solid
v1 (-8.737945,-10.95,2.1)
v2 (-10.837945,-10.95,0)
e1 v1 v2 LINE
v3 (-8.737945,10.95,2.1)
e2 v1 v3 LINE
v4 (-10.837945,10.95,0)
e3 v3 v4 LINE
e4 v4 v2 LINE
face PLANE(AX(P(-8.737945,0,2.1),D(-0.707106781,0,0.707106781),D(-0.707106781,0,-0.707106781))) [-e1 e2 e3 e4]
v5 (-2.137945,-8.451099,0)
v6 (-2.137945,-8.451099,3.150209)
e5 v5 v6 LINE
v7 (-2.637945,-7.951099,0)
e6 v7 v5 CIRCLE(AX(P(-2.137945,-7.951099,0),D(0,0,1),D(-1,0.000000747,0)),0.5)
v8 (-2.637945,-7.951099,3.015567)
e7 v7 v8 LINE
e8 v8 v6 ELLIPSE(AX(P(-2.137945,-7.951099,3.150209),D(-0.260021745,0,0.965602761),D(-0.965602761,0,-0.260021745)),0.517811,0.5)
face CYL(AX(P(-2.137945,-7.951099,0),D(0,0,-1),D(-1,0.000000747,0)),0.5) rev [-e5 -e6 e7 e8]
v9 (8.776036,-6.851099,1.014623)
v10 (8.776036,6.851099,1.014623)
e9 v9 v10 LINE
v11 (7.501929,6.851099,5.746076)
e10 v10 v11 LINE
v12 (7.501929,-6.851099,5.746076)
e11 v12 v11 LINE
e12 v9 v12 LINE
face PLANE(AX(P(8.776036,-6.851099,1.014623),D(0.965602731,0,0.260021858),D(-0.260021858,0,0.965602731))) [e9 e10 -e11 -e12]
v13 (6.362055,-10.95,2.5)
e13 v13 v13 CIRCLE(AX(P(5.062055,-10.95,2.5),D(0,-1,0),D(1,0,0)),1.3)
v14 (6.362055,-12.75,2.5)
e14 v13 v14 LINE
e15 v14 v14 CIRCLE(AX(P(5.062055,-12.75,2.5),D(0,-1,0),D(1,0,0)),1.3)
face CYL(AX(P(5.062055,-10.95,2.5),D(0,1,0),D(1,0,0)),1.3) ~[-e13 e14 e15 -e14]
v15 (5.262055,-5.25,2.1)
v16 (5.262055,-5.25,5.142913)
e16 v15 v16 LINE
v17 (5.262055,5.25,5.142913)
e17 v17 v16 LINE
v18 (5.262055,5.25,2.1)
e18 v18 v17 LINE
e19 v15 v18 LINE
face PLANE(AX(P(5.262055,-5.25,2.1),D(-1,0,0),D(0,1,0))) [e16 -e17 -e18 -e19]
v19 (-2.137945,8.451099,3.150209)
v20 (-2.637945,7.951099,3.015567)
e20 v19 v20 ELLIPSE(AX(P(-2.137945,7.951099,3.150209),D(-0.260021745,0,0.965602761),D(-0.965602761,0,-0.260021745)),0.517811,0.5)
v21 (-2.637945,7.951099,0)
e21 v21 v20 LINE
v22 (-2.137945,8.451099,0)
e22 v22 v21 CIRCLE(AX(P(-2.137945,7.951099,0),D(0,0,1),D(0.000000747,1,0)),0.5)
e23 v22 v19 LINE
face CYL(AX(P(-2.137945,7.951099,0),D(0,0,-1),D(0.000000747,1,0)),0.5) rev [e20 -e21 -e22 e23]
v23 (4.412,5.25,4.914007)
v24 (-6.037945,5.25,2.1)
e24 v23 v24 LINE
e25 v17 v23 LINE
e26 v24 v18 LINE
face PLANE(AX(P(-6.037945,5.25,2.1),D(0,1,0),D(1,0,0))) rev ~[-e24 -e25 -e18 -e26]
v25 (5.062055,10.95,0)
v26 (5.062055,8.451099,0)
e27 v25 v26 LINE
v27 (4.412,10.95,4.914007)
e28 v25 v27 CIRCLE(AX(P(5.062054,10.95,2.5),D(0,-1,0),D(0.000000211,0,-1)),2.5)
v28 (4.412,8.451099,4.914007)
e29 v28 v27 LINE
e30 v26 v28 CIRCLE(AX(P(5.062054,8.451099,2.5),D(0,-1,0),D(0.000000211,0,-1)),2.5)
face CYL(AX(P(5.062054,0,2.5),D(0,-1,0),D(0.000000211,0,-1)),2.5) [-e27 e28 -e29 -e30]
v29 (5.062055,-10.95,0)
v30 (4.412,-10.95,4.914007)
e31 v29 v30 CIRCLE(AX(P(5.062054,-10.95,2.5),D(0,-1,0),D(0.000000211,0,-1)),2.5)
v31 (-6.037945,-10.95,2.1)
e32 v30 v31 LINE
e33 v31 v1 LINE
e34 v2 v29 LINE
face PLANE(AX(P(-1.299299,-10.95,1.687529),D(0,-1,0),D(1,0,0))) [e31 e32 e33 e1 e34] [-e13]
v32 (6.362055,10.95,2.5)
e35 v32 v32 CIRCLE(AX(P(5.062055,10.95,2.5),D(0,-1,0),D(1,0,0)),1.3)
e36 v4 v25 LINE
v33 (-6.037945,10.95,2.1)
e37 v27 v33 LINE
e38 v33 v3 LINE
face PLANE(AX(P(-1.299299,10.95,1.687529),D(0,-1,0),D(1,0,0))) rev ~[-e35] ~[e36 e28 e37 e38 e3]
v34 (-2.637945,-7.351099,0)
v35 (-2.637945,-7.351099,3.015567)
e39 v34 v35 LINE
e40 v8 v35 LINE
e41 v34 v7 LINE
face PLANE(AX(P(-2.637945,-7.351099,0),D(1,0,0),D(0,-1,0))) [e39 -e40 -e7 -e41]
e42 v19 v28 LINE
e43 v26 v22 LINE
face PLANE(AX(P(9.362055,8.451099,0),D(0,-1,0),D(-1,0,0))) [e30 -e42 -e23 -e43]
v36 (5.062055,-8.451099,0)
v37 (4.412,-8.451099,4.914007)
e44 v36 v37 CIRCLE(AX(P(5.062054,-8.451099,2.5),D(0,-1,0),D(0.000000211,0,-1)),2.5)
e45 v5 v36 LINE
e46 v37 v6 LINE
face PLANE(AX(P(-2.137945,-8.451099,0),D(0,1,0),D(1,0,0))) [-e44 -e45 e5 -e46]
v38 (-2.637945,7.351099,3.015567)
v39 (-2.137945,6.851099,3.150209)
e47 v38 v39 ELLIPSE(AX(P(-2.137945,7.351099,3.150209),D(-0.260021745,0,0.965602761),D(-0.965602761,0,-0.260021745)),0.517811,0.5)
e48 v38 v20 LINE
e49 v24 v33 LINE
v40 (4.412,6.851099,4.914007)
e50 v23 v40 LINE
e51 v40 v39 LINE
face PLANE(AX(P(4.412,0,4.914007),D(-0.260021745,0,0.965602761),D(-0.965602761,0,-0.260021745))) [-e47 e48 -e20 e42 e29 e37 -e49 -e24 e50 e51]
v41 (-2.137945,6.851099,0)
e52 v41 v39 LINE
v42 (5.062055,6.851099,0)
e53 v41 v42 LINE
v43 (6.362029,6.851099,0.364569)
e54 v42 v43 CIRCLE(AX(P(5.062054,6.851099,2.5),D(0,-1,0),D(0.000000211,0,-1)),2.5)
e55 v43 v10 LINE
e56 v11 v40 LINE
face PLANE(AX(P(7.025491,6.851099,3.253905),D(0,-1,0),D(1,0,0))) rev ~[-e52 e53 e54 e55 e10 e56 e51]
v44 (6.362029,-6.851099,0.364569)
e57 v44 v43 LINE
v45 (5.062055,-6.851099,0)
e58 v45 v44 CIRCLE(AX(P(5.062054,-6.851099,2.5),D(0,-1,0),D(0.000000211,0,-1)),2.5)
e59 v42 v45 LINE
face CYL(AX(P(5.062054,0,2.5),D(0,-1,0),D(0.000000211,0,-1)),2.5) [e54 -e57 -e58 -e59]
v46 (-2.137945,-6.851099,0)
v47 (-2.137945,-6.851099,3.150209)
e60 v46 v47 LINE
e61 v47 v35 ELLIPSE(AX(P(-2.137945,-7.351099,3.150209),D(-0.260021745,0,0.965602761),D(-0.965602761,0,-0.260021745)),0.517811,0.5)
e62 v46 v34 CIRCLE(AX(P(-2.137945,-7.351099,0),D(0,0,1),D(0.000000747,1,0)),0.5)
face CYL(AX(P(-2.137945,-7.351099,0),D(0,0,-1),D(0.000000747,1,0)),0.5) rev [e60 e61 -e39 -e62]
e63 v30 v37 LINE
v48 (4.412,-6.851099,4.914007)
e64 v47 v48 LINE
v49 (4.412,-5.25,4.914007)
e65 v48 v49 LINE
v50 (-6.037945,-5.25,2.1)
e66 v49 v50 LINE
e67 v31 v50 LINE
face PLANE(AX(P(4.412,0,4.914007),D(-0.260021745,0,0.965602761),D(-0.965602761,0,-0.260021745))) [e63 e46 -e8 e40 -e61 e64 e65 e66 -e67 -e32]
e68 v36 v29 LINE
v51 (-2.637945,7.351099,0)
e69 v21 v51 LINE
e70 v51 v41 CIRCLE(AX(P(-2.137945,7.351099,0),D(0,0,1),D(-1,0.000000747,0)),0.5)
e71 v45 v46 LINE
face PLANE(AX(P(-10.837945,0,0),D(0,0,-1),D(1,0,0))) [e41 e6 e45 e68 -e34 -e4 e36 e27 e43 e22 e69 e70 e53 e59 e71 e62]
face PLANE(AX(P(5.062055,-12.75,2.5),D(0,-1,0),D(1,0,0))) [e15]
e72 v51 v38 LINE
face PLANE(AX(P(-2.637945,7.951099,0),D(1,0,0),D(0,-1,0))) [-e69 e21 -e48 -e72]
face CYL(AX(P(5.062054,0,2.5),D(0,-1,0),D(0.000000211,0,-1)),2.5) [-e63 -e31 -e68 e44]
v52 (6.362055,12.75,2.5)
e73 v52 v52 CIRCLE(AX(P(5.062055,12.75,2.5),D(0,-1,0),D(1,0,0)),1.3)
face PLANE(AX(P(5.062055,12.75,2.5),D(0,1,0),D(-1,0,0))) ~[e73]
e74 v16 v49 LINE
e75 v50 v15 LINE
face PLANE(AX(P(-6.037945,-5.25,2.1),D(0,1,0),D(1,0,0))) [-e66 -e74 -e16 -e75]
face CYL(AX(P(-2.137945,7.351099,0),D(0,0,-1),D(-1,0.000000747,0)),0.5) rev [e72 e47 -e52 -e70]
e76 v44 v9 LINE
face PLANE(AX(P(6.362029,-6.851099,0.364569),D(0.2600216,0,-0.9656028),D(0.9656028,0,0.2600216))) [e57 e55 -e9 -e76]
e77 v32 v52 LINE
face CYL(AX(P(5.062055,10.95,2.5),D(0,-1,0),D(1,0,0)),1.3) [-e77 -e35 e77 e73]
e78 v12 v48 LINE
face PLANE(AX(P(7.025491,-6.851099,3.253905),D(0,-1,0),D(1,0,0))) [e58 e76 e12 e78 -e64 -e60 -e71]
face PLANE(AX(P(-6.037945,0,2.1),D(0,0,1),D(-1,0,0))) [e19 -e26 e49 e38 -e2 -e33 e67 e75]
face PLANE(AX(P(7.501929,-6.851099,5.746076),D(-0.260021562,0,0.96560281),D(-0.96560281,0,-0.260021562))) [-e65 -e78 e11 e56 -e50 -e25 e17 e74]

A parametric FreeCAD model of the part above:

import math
import FreeCAD as App
import Part
import Sketcher
Q = App.Units.Quantity

doc = App.newDocument("Part")
body = doc.addObject("PartDesign::Body", "Body")

# Sketch on XZ plane
sketch1 = doc.addObject("Sketcher::SketchObject", "Sketch")
body.addObject(sketch1)
sketch1.AttachmentSupport = (doc.XZ_Plane, [""])
sketch1.MapMode = "FlatFace"
sketch1.addGeometry(Part.LineSegment(App.Vector(-8.7, 2.1, 0), App.Vector(-10.8, 0, 0)), False)
sketch1.addGeometry(Part.LineSegment(App.Vector(-10.8, 0, 0), App.Vector(5.1, 0, 0)), False)
sketch1.addGeometry(Part.ArcOfCircle(Part.Circle(App.Vector(5.1, 2.5, 0), App.Vector(0, 0, 1), 2.5), math.radians(-90), math.radians(105)), False)
sketch1.addGeometry(Part.LineSegment(App.Vector(4.4, 4.9, 0), App.Vector(-6, 2.1, 0)), False)
sketch1.addGeometry(Part.LineSegment(App.Vector(-6, 2.1, 0), App.Vector(-8.7, 2.1, 0)), False)
sketch1.addConstraint(Sketcher.Constraint("Coincident", 0, 2, 1, 1))
sketch1.addConstraint(Sketcher.Constraint("Tangent", 1, 2, 2, 1))
sketch1.addConstraint(Sketcher.Constraint("Tangent", 2, 2, 3, 1))
sketch1.addConstraint(Sketcher.Constraint("Coincident", 3, 2, 4, 1))
sketch1.addConstraint(Sketcher.Constraint("Coincident", 4, 2, 0, 1))
sketch1.addConstraint(Sketcher.Constraint("Horizontal", 1))
sketch1.addConstraint(Sketcher.Constraint("Horizontal", 4))
sketch1.addConstraint(Sketcher.Constraint("PointOnObject", 0, 2, -1))
sketch1.addConstraint(Sketcher.Constraint("Radius", 2, Q("2.5 mm")))
sketch1.addConstraint(Sketcher.Constraint("Angle", 0, Q("-135 deg")))
sketch1.addConstraint(Sketcher.Constraint("DistanceX", 1, 1, 1, 2, Q("15.9 mm")))
sketch1.addConstraint(Sketcher.Constraint("DistanceX", 4, 2, 4, 1, Q("2.7 mm")))
sketch1.addConstraint(Sketcher.Constraint("DistanceY", -1, 1, 3, 2, Q("2.1 mm")))
sketch1.addConstraint(Sketcher.Constraint("DistanceX", -1, 1, 2, 2, Q("4.412 mm")))
pad1 = doc.addObject("PartDesign::Pad", "Pad")
body.addObject(pad1)
pad1.Profile = sketch1
pad1.Length = 21.9
pad1.Midplane = True

# Sketch on XZ plane
sketch2 = doc.addObject("Sketcher::SketchObject", "Sketch001")
body.addObject(sketch2)
sketch2.AttachmentSupport = (doc.XZ_Plane, [""])
sketch2.MapMode = "FlatFace"
sketch2.AttachmentOffset = App.Placement(App.Vector(0, 0, 10.95), App.Rotation())
sketch2.addGeometry(Part.Circle(App.Vector(5.1, 2.5, 0), App.Vector(0, 0, 1), 1.3), False)
sketch2.addConstraint(Sketcher.Constraint("Diameter", 0, Q("2.6 mm")))
sketch2.addConstraint(Sketcher.Constraint("DistanceY", -1, 1, 0, 3, Q("2.5 mm")))
sketch2.addConstraint(Sketcher.Constraint("DistanceX", -1, 1, 0, 3, Q("5.062055 mm")))
pad2 = doc.addObject("PartDesign::Pad", "Pad001")
body.addObject(pad2)
pad2.Profile = sketch2
pad2.Length = 1.8
body2 = doc.addObject("PartDesign::Body", "Body001")
doc.recompute()

body2.BaseFeature = body
doc.recompute()

mirroring = doc.addObject("Part::Mirroring", "Mirroring")
mirroring.Source = body
mirroring.Base = App.Vector(0, 0, 0)
mirroring.Normal = App.Vector(0, -1, 0)
body3 = doc.addObject("PartDesign::Body", "Body002")
body3.BaseFeature = mirroring
boolean = doc.addObject("PartDesign::Boolean", "Boolean")
body2.addObject(boolean)
boolean.Type = "Fuse"
boolean.addObjects([body3])
doc.recompute()

# Sketch on XY plane
sketch3 = doc.addObject("Sketcher::SketchObject", "Sketch002")
body2.addObject(sketch3)
sketch3.AttachmentSupport = (doc.getObject("XY_Plane001"), [""])
sketch3.MapMode = "FlatFace"
sketch3.addGeometry(Part.LineSegment(App.Vector(9.36, 8.45, 0), App.Vector(-2.14, 8.45, 0)), False)
sketch3.addGeometry(Part.ArcOfCircle(Part.Circle(App.Vector(-2.14, 7.95, 0), App.Vector(0, 0, 1), 0.5), math.radians(90), math.radians(180)), False)
sketch3.addGeometry(Part.LineSegment(App.Vector(-2.64, 7.95, 0), App.Vector(-2.64, 7.35, 0)), False)
sketch3.addGeometry(Part.ArcOfCircle(Part.Circle(App.Vector(-2.14, 7.35, 0), App.Vector(0, 0, 1), 0.5), math.radians(180), math.radians(270)), False)
sketch3.addGeometry(Part.LineSegment(App.Vector(-2.14, 6.85, 0), App.Vector(9.36, 6.85, 0)), False)
sketch3.addGeometry(Part.LineSegment(App.Vector(9.36, 6.85, 0), App.Vector(9.36, 8.45, 0)), False)
sketch3.addGeometry(Part.LineSegment(App.Vector(9.36, -8.45, 0), App.Vector(9.36, -6.85, 0)), False)
sketch3.addGeometry(Part.LineSegment(App.Vector(9.36, -6.85, 0), App.Vector(-2.14, -6.85, 0)), False)
sketch3.addGeometry(Part.ArcOfCircle(Part.Circle(App.Vector(-2.14, -7.35, 0), App.Vector(0, 0, 1), 0.5), math.radians(90), math.radians(180)), False)
sketch3.addGeometry(Part.LineSegment(App.Vector(-2.64, -7.35, 0), App.Vector(-2.64, -7.95, 0)), False)
sketch3.addGeometry(Part.ArcOfCircle(Part.Circle(App.Vector(-2.14, -7.95, 0), App.Vector(0, 0, 1), 0.5), math.radians(180), math.radians(270)), False)
sketch3.addGeometry(Part.LineSegment(App.Vector(-2.14, -8.45, 0), App.Vector(9.36, -8.45, 0)), False)
sketch3.addConstraint(Sketcher.Constraint("Tangent", 0, 2, 1, 1))
sketch3.addConstraint(Sketcher.Constraint("Tangent", 1, 2, 2, 1))
sketch3.addConstraint(Sketcher.Constraint("Tangent", 2, 2, 3, 1))
sketch3.addConstraint(Sketcher.Constraint("Tangent", 3, 2, 4, 1))
sketch3.addConstraint(Sketcher.Constraint("Coincident", 4, 2, 5, 1))
sketch3.addConstraint(Sketcher.Constraint("Coincident", 5, 2, 0, 1))
sketch3.addConstraint(Sketcher.Constraint("Coincident", 6, 2, 7, 1))
sketch3.addConstraint(Sketcher.Constraint("Tangent", 7, 2, 8, 1))
sketch3.addConstraint(Sketcher.Constraint("Tangent", 8, 2, 9, 1))
sketch3.addConstraint(Sketcher.Constraint("Tangent", 9, 2, 10, 1))
sketch3.addConstraint(Sketcher.Constraint("Tangent", 10, 2, 11, 1))
sketch3.addConstraint(Sketcher.Constraint("Coincident", 11, 2, 6, 1))
sketch3.addConstraint(Sketcher.Constraint("Horizontal", 0))
sketch3.addConstraint(Sketcher.Constraint("Vertical", 2))
sketch3.addConstraint(Sketcher.Constraint("Horizontal", 4))
sketch3.addConstraint(Sketcher.Constraint("Vertical", 5))
sketch3.addConstraint(Sketcher.Constraint("Vertical", 6))
sketch3.addConstraint(Sketcher.Constraint("Horizontal", 7))
sketch3.addConstraint(Sketcher.Constraint("Vertical", 9))
sketch3.addConstraint(Sketcher.Constraint("Horizontal", 11))
sketch3.addConstraint(Sketcher.Constraint("Equal", 1, 3))
sketch3.addConstraint(Sketcher.Constraint("Equal", 3, 8))
sketch3.addConstraint(Sketcher.Constraint("Equal", 8, 10))
sketch3.addConstraint(Sketcher.Constraint("Symmetric", 3, 3, 8, 3, -1))
sketch3.addConstraint(Sketcher.Constraint("Symmetric", 5, 2, 11, 2, -1))
sketch3.addConstraint(Sketcher.Constraint("Radius", 1, Q("0.5 mm")))
sketch3.addConstraint(Sketcher.Constraint("DistanceX", 0, 2, 0, 1, Q("11.5 mm")))
sketch3.addConstraint(Sketcher.Constraint("DistanceY", 2, 2, 2, 1, Q("0.6 mm")))
sketch3.addConstraint(Sketcher.Constraint("DistanceY", -1, 1, 1, 3, Q("7.951099 mm")))
sketch3.addConstraint(Sketcher.Constraint("DistanceX", 1, 3, -1, 1, Q("2.137945 mm")))
pocket1 = doc.addObject("PartDesign::Pocket", "Pocket")
body2.addObject(pocket1)
pocket1.Profile = sketch3
pocket1.Type = "ThroughAll"
pocket1.Reversed = True

# Sketch on XZ plane
sketch4 = doc.addObject("Sketcher::SketchObject", "Sketch003")
body2.addObject(sketch4)
sketch4.AttachmentSupport = (doc.getObject("XZ_Plane001"), [""])
sketch4.MapMode = "FlatFace"
sketch4.AttachmentOffset = App.Placement(App.Vector(0, 0, 6.851099), App.Rotation())
sketch4.addGeometry(Part.LineSegment(App.Vector(7.5, 5.7, 0), App.Vector(4.4, 4.9, 0)), False)
sketch4.addGeometry(Part.ArcOfCircle(Part.Circle(App.Vector(5.1, 2.5, 0), App.Vector(0, 0, 1), 2.5), math.radians(-59), math.radians(105)), False)
sketch4.addGeometry(Part.LineSegment(App.Vector(6.4, 0.4, 0), App.Vector(8.8, 1, 0)), False)
sketch4.addGeometry(Part.LineSegment(App.Vector(8.8, 1, 0), App.Vector(7.5, 5.7, 0)), False)
sketch4.addConstraint(Sketcher.Constraint("Tangent", 0, 2, 1, 2))
sketch4.addConstraint(Sketcher.Constraint("Coincident", 1, 1, 2, 1))
sketch4.addConstraint(Sketcher.Constraint("Coincident", 2, 2, 3, 1))
sketch4.addConstraint(Sketcher.Constraint("Coincident", 3, 2, 0, 1))
sketch4.addConstraint(Sketcher.Constraint("Parallel", 0, 2))
sketch4.addConstraint(Sketcher.Constraint("Perpendicular", 2, 3))
sketch4.addConstraint(Sketcher.Constraint("Radius", 1, Q("2.5 mm")))
sketch4.addConstraint(Sketcher.Constraint("Distance", 0, Q("3.2 mm")))
sketch4.addConstraint(Sketcher.Constraint("Distance", 2, Q("2.5 mm")))
sketch4.addConstraint(Sketcher.Constraint("DistanceY", -1, 1, 1, 3, Q("2.5 mm")))
sketch4.addConstraint(Sketcher.Constraint("DistanceX", -1, 1, 0, 2, Q("4.412 mm")))
sketch4.addConstraint(Sketcher.Constraint("DistanceX", 1, 1, 3, 2, Q("1.1399 mm")))
pad3 = doc.addObject("PartDesign::Pad", "Pad002")
body2.addObject(pad3)
pad3.Profile = sketch4
pad3.Length = 13.702198
pad3.Reversed = True

# Sketch on XY plane
sketch5 = doc.addObject("Sketcher::SketchObject", "Sketch004")
body2.addObject(sketch5)
sketch5.AttachmentSupport = (doc.getObject("XY_Plane001"), [""])
sketch5.MapMode = "FlatFace"
sketch5.AttachmentOffset = App.Placement(App.Vector(0, 0, 2.1), App.Rotation())
sketch5.addGeometry(Part.LineSegment(App.Vector(-6, 5, 0), App.Vector(-6, -5, 0)), False)
sketch5.addGeometry(Part.LineSegment(App.Vector(-6, -5, 0), App.Vector(5, -5, 0)), False)
sketch5.addGeometry(Part.LineSegment(App.Vector(5, -5, 0), App.Vector(5, 5, 0)), False)
sketch5.addGeometry(Part.LineSegment(App.Vector(5, 5, 0), App.Vector(-6, 5, 0)), False)
sketch5.addConstraint(Sketcher.Constraint("Coincident", 0, 2, 1, 1))
sketch5.addConstraint(Sketcher.Constraint("Coincident", 1, 2, 2, 1))
sketch5.addConstraint(Sketcher.Constraint("Coincident", 2, 2, 3, 1))
sketch5.addConstraint(Sketcher.Constraint("Coincident", 3, 2, 0, 1))
sketch5.addConstraint(Sketcher.Constraint("Vertical", 0))
sketch5.addConstraint(Sketcher.Constraint("Horizontal", 1))
sketch5.addConstraint(Sketcher.Constraint("Vertical", 2))
sketch5.addConstraint(Sketcher.Constraint("Horizontal", 3))
sketch5.addConstraint(Sketcher.Constraint("DistanceX", 1, 1, 1, 2, Q("11.3 mm")))
sketch5.addConstraint(Sketcher.Constraint("DistanceY", 0, 2, 0, 1, Q("10.5 mm")))
sketch5.addConstraint(Sketcher.Constraint("DistanceY", 0, 2, -1, 1, Q("5.25 mm")))
sketch5.addConstraint(Sketcher.Constraint("DistanceX", 0, 2, -1, 1, Q("6.037945 mm")))
pocket2 = doc.addObject("PartDesign::Pocket", "Pocket001")
body2.addObject(pocket2)
pocket2.Profile = sketch5
pocket2.Type = "ThroughAll"
pocket2.Reversed = True
mirroring.Visibility = False

doc.recompute()
